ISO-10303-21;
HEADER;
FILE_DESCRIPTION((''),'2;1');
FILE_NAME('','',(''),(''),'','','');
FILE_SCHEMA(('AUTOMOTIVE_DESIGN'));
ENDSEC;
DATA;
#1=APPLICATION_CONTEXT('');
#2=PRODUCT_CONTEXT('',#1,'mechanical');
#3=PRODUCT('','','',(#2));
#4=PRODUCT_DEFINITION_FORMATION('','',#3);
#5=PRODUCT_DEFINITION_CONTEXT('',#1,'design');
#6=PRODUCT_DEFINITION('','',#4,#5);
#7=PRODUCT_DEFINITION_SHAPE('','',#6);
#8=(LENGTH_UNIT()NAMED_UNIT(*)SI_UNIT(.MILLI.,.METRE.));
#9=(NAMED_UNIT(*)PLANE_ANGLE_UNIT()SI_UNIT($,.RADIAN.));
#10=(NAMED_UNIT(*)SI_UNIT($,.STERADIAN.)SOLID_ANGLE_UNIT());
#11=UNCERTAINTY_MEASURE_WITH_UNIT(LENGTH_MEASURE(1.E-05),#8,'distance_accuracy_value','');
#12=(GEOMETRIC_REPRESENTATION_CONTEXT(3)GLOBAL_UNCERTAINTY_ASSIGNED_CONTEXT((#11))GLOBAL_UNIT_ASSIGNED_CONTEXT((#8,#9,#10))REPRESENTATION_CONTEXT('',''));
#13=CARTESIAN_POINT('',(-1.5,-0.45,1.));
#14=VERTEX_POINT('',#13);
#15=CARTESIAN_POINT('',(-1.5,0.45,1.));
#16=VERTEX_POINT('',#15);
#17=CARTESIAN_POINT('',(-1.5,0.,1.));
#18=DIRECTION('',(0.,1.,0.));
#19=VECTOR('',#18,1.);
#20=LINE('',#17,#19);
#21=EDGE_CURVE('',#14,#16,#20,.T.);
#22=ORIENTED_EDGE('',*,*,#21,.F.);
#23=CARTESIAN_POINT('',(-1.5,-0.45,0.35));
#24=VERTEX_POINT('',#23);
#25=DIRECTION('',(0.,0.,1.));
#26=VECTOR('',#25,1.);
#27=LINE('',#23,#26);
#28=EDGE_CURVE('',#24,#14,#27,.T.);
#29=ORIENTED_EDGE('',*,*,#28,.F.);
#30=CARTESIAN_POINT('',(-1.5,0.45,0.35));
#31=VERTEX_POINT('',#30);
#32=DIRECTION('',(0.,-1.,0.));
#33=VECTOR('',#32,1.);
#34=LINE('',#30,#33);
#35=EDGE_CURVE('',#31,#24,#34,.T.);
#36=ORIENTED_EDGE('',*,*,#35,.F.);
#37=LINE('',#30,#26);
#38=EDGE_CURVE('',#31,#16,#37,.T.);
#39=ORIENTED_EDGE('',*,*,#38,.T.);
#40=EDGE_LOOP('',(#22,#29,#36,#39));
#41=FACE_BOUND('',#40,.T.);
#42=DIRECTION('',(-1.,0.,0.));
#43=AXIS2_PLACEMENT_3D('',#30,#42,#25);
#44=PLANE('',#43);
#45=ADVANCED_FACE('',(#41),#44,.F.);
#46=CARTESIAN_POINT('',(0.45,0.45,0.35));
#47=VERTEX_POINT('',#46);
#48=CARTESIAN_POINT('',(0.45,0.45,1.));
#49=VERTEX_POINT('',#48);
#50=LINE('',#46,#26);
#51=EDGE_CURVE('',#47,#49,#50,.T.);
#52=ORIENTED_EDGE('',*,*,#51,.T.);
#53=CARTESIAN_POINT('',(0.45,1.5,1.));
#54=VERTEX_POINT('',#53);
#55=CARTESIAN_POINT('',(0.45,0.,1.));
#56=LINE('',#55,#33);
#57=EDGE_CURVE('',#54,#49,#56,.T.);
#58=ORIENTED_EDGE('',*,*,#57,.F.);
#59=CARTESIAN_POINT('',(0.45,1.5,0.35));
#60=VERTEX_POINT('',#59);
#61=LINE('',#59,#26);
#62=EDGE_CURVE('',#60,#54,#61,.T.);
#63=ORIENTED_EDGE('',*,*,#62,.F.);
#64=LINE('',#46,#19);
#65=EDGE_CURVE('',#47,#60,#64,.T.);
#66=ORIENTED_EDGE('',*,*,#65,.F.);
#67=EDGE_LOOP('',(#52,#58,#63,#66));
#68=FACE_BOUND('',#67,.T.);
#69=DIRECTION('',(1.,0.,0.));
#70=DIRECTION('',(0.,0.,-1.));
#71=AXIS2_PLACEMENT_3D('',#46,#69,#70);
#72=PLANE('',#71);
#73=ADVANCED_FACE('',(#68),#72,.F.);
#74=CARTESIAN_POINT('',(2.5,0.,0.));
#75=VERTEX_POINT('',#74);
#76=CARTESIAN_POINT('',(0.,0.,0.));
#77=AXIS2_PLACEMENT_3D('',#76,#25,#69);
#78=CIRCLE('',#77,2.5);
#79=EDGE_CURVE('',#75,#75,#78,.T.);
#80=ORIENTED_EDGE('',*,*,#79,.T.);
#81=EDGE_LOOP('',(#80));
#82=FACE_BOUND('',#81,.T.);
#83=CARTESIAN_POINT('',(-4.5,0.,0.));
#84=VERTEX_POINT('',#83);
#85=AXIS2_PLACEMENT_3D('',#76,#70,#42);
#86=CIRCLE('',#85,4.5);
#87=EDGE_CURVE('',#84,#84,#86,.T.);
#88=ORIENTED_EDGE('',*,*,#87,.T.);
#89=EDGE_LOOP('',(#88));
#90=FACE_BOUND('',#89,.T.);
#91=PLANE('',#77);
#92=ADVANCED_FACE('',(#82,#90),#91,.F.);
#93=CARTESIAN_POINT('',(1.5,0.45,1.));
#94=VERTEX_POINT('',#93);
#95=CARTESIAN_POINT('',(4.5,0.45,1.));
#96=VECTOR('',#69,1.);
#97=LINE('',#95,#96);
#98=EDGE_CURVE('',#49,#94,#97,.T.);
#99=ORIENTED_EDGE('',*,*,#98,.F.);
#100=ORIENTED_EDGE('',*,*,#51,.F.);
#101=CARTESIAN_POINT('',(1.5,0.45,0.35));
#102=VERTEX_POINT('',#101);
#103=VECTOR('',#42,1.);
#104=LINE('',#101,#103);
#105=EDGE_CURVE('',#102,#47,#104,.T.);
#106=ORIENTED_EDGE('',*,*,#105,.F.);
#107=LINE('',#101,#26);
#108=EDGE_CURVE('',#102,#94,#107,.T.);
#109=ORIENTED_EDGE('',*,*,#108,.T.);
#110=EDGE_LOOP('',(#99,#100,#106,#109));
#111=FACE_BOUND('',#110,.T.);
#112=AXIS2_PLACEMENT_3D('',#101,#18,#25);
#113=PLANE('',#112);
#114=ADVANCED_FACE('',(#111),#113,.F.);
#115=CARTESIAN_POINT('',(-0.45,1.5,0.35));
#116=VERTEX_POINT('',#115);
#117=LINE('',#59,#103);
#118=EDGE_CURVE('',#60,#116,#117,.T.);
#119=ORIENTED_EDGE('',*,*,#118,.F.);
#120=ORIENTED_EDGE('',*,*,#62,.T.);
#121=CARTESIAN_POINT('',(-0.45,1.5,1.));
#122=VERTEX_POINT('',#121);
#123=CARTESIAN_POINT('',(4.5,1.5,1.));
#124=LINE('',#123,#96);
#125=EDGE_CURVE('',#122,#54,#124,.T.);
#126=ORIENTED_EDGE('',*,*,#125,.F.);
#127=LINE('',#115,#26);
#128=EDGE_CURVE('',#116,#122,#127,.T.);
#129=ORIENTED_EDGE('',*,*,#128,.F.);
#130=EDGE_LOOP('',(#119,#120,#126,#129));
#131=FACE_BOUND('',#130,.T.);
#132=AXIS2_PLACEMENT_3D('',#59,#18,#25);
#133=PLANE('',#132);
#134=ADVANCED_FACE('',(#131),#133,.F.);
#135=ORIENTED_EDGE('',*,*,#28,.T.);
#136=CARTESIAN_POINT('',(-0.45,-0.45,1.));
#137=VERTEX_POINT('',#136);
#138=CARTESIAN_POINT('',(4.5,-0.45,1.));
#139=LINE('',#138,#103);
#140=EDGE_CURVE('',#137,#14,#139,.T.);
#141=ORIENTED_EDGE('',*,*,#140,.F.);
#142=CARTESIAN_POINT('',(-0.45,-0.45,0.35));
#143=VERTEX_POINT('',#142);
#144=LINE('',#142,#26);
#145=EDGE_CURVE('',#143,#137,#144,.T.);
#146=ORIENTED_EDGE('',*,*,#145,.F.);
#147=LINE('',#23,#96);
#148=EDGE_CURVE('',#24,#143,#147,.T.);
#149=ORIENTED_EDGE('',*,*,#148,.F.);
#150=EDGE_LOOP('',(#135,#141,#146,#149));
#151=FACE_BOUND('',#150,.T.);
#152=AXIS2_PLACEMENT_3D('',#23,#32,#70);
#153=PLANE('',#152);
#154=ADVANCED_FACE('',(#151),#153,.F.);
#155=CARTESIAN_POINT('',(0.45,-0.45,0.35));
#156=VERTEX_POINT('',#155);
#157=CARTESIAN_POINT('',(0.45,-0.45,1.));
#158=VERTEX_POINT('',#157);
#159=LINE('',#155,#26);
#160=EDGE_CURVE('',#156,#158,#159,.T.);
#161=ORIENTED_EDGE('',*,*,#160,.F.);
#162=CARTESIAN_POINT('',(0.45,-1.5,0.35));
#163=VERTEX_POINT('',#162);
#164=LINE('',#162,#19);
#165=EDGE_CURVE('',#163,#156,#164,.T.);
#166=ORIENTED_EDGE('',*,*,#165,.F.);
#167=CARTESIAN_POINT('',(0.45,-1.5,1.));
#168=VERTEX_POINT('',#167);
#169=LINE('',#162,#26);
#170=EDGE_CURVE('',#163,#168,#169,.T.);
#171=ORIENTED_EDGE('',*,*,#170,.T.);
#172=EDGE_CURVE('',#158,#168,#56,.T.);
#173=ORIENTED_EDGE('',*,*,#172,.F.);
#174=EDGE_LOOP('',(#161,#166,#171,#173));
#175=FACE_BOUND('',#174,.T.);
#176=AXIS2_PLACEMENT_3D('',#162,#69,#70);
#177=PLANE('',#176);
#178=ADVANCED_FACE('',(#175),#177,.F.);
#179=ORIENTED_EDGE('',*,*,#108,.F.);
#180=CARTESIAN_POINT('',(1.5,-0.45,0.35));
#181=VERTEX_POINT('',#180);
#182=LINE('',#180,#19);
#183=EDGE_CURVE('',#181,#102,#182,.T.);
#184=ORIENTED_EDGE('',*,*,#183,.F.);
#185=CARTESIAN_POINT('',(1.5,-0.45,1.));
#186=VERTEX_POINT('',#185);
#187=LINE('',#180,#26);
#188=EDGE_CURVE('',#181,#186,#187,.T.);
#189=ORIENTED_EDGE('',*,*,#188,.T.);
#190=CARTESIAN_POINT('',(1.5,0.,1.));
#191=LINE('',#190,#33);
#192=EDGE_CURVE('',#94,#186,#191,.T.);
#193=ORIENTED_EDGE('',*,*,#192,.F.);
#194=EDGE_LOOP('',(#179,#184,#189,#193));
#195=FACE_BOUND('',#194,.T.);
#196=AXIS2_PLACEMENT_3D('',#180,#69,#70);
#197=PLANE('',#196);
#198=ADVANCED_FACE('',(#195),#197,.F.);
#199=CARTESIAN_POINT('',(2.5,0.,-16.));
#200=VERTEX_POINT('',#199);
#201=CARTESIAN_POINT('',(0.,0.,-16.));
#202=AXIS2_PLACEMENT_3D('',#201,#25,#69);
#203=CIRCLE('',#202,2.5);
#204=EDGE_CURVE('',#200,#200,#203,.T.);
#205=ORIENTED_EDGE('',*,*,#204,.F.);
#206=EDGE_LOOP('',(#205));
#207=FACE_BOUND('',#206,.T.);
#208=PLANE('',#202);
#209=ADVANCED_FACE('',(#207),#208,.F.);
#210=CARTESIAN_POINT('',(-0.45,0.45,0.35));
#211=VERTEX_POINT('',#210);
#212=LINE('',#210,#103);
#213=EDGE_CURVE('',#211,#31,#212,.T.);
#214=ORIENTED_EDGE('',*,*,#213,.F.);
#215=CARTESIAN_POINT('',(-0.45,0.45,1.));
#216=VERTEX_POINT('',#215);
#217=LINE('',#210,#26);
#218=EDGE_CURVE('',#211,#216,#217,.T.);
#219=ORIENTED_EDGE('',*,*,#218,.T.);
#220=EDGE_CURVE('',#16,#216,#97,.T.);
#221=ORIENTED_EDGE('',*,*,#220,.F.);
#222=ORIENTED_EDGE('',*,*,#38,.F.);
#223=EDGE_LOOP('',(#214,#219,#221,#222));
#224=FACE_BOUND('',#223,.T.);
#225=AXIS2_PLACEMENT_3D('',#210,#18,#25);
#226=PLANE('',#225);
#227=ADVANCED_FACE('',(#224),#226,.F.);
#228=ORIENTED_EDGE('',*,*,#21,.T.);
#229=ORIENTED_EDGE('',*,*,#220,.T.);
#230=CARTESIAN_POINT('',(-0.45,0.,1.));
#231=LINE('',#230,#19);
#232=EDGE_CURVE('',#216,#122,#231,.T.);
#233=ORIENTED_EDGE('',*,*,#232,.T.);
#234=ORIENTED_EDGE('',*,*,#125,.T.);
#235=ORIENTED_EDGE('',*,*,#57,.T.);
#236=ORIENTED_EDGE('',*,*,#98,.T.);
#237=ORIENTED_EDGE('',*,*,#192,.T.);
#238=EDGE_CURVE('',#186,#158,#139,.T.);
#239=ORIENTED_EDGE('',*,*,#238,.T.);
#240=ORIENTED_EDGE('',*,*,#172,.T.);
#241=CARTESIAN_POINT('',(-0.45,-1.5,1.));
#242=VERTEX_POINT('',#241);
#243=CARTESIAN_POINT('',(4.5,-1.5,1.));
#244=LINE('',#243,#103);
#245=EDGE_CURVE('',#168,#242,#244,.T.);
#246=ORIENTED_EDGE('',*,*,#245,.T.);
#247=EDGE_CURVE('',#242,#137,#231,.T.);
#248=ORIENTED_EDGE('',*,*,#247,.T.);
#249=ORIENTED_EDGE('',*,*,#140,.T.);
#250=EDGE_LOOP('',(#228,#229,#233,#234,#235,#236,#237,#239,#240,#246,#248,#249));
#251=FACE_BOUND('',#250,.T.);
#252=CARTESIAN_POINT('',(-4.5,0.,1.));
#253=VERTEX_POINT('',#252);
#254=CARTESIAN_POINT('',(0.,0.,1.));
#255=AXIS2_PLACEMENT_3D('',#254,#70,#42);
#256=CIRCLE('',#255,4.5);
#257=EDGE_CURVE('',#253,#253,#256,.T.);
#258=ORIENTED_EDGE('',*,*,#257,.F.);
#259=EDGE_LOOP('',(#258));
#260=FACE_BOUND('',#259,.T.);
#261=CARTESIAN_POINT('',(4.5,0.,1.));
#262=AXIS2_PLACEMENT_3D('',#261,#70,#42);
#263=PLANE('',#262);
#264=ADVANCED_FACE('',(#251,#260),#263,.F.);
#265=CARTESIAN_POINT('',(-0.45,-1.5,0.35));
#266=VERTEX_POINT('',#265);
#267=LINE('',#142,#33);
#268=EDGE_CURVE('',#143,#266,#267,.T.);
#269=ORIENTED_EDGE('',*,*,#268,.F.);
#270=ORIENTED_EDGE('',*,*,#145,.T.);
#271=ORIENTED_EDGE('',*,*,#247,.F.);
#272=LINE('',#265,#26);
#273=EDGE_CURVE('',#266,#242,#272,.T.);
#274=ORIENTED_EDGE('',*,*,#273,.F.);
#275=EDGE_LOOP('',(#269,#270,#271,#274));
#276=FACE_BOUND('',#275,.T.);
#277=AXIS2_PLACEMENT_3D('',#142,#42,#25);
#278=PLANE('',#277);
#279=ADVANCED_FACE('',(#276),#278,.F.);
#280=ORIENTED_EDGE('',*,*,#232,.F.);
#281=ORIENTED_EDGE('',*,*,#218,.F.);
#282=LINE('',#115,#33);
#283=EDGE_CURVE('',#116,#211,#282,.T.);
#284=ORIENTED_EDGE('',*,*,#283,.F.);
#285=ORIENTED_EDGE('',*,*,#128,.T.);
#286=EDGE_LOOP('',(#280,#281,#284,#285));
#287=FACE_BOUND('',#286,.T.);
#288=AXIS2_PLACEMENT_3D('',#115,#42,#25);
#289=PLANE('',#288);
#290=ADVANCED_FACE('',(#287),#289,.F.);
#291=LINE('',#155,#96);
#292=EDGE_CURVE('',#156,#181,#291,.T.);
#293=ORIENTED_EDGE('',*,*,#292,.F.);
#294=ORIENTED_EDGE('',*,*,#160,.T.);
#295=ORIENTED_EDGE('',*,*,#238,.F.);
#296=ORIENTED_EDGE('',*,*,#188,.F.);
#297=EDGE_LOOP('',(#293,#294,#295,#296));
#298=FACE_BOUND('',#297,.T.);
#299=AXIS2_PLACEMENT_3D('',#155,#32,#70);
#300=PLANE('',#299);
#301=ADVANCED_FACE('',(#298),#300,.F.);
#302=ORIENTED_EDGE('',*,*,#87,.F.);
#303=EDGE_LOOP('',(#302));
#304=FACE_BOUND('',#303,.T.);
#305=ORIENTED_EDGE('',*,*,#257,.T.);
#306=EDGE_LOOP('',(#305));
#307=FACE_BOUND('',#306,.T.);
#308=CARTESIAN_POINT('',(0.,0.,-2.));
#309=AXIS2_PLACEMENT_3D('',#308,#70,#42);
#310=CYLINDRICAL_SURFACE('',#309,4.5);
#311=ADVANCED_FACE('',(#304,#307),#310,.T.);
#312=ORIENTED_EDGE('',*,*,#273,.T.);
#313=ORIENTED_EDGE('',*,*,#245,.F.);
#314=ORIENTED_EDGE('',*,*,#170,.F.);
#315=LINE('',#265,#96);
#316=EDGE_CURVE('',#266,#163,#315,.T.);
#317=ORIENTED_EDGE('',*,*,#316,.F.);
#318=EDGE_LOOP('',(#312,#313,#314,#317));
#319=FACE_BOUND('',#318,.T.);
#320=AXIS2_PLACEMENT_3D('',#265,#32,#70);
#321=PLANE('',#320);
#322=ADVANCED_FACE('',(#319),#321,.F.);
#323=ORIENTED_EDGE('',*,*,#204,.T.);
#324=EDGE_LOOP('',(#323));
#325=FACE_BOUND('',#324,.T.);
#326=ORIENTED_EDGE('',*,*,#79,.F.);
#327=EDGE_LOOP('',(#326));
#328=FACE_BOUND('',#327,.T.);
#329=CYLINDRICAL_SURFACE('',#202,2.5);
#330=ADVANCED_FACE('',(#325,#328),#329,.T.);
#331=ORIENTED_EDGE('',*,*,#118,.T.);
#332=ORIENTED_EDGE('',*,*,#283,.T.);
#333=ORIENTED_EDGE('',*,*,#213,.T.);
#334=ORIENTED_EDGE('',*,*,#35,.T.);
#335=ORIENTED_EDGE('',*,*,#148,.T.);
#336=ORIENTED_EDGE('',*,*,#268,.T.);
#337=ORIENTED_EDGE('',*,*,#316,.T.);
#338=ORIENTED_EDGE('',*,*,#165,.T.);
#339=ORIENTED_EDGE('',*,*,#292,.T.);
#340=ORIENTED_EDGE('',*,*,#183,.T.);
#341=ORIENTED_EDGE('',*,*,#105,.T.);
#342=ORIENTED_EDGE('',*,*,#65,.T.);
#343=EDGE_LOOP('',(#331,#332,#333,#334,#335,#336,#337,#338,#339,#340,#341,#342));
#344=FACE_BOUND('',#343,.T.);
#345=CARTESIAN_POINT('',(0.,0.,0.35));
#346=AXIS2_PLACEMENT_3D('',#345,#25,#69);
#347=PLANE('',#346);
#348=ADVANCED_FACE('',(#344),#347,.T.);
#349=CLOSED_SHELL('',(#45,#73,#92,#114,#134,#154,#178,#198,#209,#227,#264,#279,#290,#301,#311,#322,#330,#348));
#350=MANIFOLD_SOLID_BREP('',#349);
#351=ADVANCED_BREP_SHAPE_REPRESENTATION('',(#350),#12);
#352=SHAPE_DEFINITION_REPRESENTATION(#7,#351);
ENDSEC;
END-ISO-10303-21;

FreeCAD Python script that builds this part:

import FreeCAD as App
import Part
import Sketcher

doc = App.newDocument("Part")
body = doc.addObject("PartDesign::Body", "Body")

sketch1 = doc.addObject("Sketcher::SketchObject", "Sketch")
body.addObject(sketch1)
sketch1.AttachmentSupport = (doc.XY_Plane, [""])
sketch1.MapMode = "FlatFace"
sketch1.addGeometry(Part.Circle(App.Vector(0, 0, 0), App.Vector(0, 0, 1), 2.5), False)
sketch1.addConstraint(Sketcher.Constraint("Coincident", 0, 3, -1, 1))
sketch1.addConstraint(Sketcher.Constraint("Diameter", 0, 5.0))
pad1 = doc.addObject("PartDesign::Pad", "Pad")
body.addObject(pad1)
pad1.Profile = sketch1
pad1.Length = 16
pad1.Reversed = True

sketch2 = doc.addObject("Sketcher::SketchObject", "Sketch001")
body.addObject(sketch2)
sketch2.AttachmentSupport = (doc.XZ_Plane, [""])
sketch2.MapMode = "FlatFace"
sketch2.addGeometry(Part.LineSegment(App.Vector(0, 0, 0), App.Vector(0, 1, 0)), False)
sketch2.addGeometry(Part.LineSegment(App.Vector(0, 1, 0), App.Vector(4.5, 1, 0)), False)
sketch2.addGeometry(Part.LineSegment(App.Vector(4.5, 1, 0), App.Vector(4.5, 0, 0)), False)
sketch2.addGeometry(Part.LineSegment(App.Vector(4.5, 0, 0), App.Vector(0, 0, 0)), False)
sketch2.addConstraint(Sketcher.Constraint("Coincident", 0, 2, 1, 1))
sketch2.addConstraint(Sketcher.Constraint("Coincident", 1, 2, 2, 1))
sketch2.addConstraint(Sketcher.Constraint("Coincident", 2, 2, 3, 1))
sketch2.addConstraint(Sketcher.Constraint("Coincident", 3, 2, 0, 1))
sketch2.addConstraint(Sketcher.Constraint("Vertical", 0))
sketch2.addConstraint(Sketcher.Constraint("Horizontal", 1))
sketch2.addConstraint(Sketcher.Constraint("Vertical", 2))
sketch2.addConstraint(Sketcher.Constraint("Horizontal", 3))
sketch2.addConstraint(Sketcher.Constraint("Coincident", 3, 2, -1, 1))
sketch2.addConstraint(Sketcher.Constraint("DistanceY", 0, 1, 0, 2, 1.0))
sketch2.addConstraint(Sketcher.Constraint("DistanceX", 1, 1, 1, 2, 4.5))
revolution = doc.addObject("PartDesign::Revolution", "Revolution")
body.addObject(revolution)
revolution.Profile = sketch2
revolution.ReferenceAxis = (sketch2, ["V_Axis"])
revolution.Angle = 360

sketch3 = doc.addObject("Sketcher::SketchObject", "Sketch002")
body.addObject(sketch3)
sketch3.AttachmentSupport = (doc.XY_Plane, [""])
sketch3.MapMode = "FlatFace"
sketch3.AttachmentOffset = App.Placement(App.Vector(0, 0, 1.01), App.Rotation())
sketch3.addGeometry(Part.LineSegment(App.Vector(-0.5, -1.5, 0), App.Vector(0.5, -1.5, 0)), False)
sketch3.addGeometry(Part.LineSegment(App.Vector(0.5, -1.5, 0), App.Vector(0.5, -0.5, 0)), False)
sketch3.addGeometry(Part.LineSegment(App.Vector(0.5, -0.5, 0), App.Vector(1.5, -0.5, 0)), False)
sketch3.addGeometry(Part.LineSegment(App.Vector(1.5, -0.5, 0), App.Vector(1.5, 0.5, 0)), False)
sketch3.addGeometry(Part.LineSegment(App.Vector(1.5, 0.5, 0), App.Vector(0.5, 0.5, 0)), False)
sketch3.addGeometry(Part.LineSegment(App.Vector(0.5, 0.5, 0), App.Vector(0.5, 1.5, 0)), False)
sketch3.addGeometry(Part.LineSegment(App.Vector(0.5, 1.5, 0), App.Vector(-0.5, 1.5, 0)), False)
sketch3.addGeometry(Part.LineSegment(App.Vector(-0.5, 1.5, 0), App.Vector(-0.5, 0.5, 0)), False)
sketch3.addGeometry(Part.LineSegment(App.Vector(-0.5, 0.5, 0), App.Vector(-1.5, 0.5, 0)), False)
sketch3.addGeometry(Part.LineSegment(App.Vector(-1.5, 0.5, 0), App.Vector(-1.5, -0.5, 0)), False)
sketch3.addGeometry(Part.LineSegment(App.Vector(-1.5, -0.5, 0), App.Vector(-0.5, -0.5, 0)), False)
sketch3.addGeometry(Part.LineSegment(App.Vector(-0.5, -0.5, 0), App.Vector(-0.5, -1.5, 0)), False)
sketch3.addConstraint(Sketcher.Constraint("Coincident", 0, 2, 1, 1))
sketch3.addConstraint(Sketcher.Constraint("Coincident", 1, 2, 2, 1))
sketch3.addConstraint(Sketcher.Constraint("Coincident", 2, 2, 3, 1))
sketch3.addConstraint(Sketcher.Constraint("Coincident", 3, 2, 4, 1))
sketch3.addConstraint(Sketcher.Constraint("Coincident", 4, 2, 5, 1))
sketch3.addConstraint(Sketcher.Constraint("Coincident", 5, 2, 6, 1))
sketch3.addConstraint(Sketcher.Constraint("Coincident", 6, 2, 7, 1))
sketch3.addConstraint(Sketcher.Constraint("Coincident", 7, 2, 8, 1))
sketch3.addConstraint(Sketcher.Constraint("Coincident", 8, 2, 9, 1))
sketch3.addConstraint(Sketcher.Constraint("Coincident", 9, 2, 10, 1))
sketch3.addConstraint(Sketcher.Constraint("Coincident", 10, 2, 11, 1))
sketch3.addConstraint(Sketcher.Constraint("Coincident", 11, 2, 0, 1))
sketch3.addConstraint(Sketcher.Constraint("Horizontal", 0))
sketch3.addConstraint(Sketcher.Constraint("Vertical", 1))
sketch3.addConstraint(Sketcher.Constraint("Horizontal", 2))
sketch3.addConstraint(Sketcher.Constraint("Vertical", 3))
sketch3.addConstraint(Sketcher.Constraint("Horizontal", 4))
sketch3.addConstraint(Sketcher.Constraint("Vertical", 5))
sketch3.addConstraint(Sketcher.Constraint("Horizontal", 6))
sketch3.addConstraint(Sketcher.Constraint("Vertical", 7))
sketch3.addConstraint(Sketcher.Constraint("Horizontal", 8))
sketch3.addConstraint(Sketcher.Constraint("Vertical", 9))
sketch3.addConstraint(Sketcher.Constraint("Horizontal", 10))
sketch3.addConstraint(Sketcher.Constraint("Vertical", 11))
sketch3.addConstraint(Sketcher.Constraint("Symmetric", 0, 2, 6, 2, -1, 1))
sketch3.addConstraint(Sketcher.Constraint("Symmetric", 2, 2, 8, 2, -1, 1))
sketch3.addConstraint(Sketcher.Constraint("Symmetric", 4, 2, 10, 2, -1, 1))
sketch3.addConstraint(Sketcher.Constraint("Symmetric", 4, 2, 7, 2, -2))
sketch3.addConstraint(Sketcher.Constraint("Equal", 10, 1))
sketch3.addConstraint(Sketcher.Constraint("Equal", 6, 3))
sketch3.addConstraint(Sketcher.Constraint("DistanceX", 0, 1, 0, 2, 0.9))
sketch3.addConstraint(Sketcher.Constraint("DistanceY", 0, 2, 5, 2, 3.0))
pocket1 = doc.addObject("PartDesign::Pocket", "Pocket")
body.addObject(pocket1)
pocket1.Profile = sketch3
pocket1.Length = 0.66

doc.recompute()
